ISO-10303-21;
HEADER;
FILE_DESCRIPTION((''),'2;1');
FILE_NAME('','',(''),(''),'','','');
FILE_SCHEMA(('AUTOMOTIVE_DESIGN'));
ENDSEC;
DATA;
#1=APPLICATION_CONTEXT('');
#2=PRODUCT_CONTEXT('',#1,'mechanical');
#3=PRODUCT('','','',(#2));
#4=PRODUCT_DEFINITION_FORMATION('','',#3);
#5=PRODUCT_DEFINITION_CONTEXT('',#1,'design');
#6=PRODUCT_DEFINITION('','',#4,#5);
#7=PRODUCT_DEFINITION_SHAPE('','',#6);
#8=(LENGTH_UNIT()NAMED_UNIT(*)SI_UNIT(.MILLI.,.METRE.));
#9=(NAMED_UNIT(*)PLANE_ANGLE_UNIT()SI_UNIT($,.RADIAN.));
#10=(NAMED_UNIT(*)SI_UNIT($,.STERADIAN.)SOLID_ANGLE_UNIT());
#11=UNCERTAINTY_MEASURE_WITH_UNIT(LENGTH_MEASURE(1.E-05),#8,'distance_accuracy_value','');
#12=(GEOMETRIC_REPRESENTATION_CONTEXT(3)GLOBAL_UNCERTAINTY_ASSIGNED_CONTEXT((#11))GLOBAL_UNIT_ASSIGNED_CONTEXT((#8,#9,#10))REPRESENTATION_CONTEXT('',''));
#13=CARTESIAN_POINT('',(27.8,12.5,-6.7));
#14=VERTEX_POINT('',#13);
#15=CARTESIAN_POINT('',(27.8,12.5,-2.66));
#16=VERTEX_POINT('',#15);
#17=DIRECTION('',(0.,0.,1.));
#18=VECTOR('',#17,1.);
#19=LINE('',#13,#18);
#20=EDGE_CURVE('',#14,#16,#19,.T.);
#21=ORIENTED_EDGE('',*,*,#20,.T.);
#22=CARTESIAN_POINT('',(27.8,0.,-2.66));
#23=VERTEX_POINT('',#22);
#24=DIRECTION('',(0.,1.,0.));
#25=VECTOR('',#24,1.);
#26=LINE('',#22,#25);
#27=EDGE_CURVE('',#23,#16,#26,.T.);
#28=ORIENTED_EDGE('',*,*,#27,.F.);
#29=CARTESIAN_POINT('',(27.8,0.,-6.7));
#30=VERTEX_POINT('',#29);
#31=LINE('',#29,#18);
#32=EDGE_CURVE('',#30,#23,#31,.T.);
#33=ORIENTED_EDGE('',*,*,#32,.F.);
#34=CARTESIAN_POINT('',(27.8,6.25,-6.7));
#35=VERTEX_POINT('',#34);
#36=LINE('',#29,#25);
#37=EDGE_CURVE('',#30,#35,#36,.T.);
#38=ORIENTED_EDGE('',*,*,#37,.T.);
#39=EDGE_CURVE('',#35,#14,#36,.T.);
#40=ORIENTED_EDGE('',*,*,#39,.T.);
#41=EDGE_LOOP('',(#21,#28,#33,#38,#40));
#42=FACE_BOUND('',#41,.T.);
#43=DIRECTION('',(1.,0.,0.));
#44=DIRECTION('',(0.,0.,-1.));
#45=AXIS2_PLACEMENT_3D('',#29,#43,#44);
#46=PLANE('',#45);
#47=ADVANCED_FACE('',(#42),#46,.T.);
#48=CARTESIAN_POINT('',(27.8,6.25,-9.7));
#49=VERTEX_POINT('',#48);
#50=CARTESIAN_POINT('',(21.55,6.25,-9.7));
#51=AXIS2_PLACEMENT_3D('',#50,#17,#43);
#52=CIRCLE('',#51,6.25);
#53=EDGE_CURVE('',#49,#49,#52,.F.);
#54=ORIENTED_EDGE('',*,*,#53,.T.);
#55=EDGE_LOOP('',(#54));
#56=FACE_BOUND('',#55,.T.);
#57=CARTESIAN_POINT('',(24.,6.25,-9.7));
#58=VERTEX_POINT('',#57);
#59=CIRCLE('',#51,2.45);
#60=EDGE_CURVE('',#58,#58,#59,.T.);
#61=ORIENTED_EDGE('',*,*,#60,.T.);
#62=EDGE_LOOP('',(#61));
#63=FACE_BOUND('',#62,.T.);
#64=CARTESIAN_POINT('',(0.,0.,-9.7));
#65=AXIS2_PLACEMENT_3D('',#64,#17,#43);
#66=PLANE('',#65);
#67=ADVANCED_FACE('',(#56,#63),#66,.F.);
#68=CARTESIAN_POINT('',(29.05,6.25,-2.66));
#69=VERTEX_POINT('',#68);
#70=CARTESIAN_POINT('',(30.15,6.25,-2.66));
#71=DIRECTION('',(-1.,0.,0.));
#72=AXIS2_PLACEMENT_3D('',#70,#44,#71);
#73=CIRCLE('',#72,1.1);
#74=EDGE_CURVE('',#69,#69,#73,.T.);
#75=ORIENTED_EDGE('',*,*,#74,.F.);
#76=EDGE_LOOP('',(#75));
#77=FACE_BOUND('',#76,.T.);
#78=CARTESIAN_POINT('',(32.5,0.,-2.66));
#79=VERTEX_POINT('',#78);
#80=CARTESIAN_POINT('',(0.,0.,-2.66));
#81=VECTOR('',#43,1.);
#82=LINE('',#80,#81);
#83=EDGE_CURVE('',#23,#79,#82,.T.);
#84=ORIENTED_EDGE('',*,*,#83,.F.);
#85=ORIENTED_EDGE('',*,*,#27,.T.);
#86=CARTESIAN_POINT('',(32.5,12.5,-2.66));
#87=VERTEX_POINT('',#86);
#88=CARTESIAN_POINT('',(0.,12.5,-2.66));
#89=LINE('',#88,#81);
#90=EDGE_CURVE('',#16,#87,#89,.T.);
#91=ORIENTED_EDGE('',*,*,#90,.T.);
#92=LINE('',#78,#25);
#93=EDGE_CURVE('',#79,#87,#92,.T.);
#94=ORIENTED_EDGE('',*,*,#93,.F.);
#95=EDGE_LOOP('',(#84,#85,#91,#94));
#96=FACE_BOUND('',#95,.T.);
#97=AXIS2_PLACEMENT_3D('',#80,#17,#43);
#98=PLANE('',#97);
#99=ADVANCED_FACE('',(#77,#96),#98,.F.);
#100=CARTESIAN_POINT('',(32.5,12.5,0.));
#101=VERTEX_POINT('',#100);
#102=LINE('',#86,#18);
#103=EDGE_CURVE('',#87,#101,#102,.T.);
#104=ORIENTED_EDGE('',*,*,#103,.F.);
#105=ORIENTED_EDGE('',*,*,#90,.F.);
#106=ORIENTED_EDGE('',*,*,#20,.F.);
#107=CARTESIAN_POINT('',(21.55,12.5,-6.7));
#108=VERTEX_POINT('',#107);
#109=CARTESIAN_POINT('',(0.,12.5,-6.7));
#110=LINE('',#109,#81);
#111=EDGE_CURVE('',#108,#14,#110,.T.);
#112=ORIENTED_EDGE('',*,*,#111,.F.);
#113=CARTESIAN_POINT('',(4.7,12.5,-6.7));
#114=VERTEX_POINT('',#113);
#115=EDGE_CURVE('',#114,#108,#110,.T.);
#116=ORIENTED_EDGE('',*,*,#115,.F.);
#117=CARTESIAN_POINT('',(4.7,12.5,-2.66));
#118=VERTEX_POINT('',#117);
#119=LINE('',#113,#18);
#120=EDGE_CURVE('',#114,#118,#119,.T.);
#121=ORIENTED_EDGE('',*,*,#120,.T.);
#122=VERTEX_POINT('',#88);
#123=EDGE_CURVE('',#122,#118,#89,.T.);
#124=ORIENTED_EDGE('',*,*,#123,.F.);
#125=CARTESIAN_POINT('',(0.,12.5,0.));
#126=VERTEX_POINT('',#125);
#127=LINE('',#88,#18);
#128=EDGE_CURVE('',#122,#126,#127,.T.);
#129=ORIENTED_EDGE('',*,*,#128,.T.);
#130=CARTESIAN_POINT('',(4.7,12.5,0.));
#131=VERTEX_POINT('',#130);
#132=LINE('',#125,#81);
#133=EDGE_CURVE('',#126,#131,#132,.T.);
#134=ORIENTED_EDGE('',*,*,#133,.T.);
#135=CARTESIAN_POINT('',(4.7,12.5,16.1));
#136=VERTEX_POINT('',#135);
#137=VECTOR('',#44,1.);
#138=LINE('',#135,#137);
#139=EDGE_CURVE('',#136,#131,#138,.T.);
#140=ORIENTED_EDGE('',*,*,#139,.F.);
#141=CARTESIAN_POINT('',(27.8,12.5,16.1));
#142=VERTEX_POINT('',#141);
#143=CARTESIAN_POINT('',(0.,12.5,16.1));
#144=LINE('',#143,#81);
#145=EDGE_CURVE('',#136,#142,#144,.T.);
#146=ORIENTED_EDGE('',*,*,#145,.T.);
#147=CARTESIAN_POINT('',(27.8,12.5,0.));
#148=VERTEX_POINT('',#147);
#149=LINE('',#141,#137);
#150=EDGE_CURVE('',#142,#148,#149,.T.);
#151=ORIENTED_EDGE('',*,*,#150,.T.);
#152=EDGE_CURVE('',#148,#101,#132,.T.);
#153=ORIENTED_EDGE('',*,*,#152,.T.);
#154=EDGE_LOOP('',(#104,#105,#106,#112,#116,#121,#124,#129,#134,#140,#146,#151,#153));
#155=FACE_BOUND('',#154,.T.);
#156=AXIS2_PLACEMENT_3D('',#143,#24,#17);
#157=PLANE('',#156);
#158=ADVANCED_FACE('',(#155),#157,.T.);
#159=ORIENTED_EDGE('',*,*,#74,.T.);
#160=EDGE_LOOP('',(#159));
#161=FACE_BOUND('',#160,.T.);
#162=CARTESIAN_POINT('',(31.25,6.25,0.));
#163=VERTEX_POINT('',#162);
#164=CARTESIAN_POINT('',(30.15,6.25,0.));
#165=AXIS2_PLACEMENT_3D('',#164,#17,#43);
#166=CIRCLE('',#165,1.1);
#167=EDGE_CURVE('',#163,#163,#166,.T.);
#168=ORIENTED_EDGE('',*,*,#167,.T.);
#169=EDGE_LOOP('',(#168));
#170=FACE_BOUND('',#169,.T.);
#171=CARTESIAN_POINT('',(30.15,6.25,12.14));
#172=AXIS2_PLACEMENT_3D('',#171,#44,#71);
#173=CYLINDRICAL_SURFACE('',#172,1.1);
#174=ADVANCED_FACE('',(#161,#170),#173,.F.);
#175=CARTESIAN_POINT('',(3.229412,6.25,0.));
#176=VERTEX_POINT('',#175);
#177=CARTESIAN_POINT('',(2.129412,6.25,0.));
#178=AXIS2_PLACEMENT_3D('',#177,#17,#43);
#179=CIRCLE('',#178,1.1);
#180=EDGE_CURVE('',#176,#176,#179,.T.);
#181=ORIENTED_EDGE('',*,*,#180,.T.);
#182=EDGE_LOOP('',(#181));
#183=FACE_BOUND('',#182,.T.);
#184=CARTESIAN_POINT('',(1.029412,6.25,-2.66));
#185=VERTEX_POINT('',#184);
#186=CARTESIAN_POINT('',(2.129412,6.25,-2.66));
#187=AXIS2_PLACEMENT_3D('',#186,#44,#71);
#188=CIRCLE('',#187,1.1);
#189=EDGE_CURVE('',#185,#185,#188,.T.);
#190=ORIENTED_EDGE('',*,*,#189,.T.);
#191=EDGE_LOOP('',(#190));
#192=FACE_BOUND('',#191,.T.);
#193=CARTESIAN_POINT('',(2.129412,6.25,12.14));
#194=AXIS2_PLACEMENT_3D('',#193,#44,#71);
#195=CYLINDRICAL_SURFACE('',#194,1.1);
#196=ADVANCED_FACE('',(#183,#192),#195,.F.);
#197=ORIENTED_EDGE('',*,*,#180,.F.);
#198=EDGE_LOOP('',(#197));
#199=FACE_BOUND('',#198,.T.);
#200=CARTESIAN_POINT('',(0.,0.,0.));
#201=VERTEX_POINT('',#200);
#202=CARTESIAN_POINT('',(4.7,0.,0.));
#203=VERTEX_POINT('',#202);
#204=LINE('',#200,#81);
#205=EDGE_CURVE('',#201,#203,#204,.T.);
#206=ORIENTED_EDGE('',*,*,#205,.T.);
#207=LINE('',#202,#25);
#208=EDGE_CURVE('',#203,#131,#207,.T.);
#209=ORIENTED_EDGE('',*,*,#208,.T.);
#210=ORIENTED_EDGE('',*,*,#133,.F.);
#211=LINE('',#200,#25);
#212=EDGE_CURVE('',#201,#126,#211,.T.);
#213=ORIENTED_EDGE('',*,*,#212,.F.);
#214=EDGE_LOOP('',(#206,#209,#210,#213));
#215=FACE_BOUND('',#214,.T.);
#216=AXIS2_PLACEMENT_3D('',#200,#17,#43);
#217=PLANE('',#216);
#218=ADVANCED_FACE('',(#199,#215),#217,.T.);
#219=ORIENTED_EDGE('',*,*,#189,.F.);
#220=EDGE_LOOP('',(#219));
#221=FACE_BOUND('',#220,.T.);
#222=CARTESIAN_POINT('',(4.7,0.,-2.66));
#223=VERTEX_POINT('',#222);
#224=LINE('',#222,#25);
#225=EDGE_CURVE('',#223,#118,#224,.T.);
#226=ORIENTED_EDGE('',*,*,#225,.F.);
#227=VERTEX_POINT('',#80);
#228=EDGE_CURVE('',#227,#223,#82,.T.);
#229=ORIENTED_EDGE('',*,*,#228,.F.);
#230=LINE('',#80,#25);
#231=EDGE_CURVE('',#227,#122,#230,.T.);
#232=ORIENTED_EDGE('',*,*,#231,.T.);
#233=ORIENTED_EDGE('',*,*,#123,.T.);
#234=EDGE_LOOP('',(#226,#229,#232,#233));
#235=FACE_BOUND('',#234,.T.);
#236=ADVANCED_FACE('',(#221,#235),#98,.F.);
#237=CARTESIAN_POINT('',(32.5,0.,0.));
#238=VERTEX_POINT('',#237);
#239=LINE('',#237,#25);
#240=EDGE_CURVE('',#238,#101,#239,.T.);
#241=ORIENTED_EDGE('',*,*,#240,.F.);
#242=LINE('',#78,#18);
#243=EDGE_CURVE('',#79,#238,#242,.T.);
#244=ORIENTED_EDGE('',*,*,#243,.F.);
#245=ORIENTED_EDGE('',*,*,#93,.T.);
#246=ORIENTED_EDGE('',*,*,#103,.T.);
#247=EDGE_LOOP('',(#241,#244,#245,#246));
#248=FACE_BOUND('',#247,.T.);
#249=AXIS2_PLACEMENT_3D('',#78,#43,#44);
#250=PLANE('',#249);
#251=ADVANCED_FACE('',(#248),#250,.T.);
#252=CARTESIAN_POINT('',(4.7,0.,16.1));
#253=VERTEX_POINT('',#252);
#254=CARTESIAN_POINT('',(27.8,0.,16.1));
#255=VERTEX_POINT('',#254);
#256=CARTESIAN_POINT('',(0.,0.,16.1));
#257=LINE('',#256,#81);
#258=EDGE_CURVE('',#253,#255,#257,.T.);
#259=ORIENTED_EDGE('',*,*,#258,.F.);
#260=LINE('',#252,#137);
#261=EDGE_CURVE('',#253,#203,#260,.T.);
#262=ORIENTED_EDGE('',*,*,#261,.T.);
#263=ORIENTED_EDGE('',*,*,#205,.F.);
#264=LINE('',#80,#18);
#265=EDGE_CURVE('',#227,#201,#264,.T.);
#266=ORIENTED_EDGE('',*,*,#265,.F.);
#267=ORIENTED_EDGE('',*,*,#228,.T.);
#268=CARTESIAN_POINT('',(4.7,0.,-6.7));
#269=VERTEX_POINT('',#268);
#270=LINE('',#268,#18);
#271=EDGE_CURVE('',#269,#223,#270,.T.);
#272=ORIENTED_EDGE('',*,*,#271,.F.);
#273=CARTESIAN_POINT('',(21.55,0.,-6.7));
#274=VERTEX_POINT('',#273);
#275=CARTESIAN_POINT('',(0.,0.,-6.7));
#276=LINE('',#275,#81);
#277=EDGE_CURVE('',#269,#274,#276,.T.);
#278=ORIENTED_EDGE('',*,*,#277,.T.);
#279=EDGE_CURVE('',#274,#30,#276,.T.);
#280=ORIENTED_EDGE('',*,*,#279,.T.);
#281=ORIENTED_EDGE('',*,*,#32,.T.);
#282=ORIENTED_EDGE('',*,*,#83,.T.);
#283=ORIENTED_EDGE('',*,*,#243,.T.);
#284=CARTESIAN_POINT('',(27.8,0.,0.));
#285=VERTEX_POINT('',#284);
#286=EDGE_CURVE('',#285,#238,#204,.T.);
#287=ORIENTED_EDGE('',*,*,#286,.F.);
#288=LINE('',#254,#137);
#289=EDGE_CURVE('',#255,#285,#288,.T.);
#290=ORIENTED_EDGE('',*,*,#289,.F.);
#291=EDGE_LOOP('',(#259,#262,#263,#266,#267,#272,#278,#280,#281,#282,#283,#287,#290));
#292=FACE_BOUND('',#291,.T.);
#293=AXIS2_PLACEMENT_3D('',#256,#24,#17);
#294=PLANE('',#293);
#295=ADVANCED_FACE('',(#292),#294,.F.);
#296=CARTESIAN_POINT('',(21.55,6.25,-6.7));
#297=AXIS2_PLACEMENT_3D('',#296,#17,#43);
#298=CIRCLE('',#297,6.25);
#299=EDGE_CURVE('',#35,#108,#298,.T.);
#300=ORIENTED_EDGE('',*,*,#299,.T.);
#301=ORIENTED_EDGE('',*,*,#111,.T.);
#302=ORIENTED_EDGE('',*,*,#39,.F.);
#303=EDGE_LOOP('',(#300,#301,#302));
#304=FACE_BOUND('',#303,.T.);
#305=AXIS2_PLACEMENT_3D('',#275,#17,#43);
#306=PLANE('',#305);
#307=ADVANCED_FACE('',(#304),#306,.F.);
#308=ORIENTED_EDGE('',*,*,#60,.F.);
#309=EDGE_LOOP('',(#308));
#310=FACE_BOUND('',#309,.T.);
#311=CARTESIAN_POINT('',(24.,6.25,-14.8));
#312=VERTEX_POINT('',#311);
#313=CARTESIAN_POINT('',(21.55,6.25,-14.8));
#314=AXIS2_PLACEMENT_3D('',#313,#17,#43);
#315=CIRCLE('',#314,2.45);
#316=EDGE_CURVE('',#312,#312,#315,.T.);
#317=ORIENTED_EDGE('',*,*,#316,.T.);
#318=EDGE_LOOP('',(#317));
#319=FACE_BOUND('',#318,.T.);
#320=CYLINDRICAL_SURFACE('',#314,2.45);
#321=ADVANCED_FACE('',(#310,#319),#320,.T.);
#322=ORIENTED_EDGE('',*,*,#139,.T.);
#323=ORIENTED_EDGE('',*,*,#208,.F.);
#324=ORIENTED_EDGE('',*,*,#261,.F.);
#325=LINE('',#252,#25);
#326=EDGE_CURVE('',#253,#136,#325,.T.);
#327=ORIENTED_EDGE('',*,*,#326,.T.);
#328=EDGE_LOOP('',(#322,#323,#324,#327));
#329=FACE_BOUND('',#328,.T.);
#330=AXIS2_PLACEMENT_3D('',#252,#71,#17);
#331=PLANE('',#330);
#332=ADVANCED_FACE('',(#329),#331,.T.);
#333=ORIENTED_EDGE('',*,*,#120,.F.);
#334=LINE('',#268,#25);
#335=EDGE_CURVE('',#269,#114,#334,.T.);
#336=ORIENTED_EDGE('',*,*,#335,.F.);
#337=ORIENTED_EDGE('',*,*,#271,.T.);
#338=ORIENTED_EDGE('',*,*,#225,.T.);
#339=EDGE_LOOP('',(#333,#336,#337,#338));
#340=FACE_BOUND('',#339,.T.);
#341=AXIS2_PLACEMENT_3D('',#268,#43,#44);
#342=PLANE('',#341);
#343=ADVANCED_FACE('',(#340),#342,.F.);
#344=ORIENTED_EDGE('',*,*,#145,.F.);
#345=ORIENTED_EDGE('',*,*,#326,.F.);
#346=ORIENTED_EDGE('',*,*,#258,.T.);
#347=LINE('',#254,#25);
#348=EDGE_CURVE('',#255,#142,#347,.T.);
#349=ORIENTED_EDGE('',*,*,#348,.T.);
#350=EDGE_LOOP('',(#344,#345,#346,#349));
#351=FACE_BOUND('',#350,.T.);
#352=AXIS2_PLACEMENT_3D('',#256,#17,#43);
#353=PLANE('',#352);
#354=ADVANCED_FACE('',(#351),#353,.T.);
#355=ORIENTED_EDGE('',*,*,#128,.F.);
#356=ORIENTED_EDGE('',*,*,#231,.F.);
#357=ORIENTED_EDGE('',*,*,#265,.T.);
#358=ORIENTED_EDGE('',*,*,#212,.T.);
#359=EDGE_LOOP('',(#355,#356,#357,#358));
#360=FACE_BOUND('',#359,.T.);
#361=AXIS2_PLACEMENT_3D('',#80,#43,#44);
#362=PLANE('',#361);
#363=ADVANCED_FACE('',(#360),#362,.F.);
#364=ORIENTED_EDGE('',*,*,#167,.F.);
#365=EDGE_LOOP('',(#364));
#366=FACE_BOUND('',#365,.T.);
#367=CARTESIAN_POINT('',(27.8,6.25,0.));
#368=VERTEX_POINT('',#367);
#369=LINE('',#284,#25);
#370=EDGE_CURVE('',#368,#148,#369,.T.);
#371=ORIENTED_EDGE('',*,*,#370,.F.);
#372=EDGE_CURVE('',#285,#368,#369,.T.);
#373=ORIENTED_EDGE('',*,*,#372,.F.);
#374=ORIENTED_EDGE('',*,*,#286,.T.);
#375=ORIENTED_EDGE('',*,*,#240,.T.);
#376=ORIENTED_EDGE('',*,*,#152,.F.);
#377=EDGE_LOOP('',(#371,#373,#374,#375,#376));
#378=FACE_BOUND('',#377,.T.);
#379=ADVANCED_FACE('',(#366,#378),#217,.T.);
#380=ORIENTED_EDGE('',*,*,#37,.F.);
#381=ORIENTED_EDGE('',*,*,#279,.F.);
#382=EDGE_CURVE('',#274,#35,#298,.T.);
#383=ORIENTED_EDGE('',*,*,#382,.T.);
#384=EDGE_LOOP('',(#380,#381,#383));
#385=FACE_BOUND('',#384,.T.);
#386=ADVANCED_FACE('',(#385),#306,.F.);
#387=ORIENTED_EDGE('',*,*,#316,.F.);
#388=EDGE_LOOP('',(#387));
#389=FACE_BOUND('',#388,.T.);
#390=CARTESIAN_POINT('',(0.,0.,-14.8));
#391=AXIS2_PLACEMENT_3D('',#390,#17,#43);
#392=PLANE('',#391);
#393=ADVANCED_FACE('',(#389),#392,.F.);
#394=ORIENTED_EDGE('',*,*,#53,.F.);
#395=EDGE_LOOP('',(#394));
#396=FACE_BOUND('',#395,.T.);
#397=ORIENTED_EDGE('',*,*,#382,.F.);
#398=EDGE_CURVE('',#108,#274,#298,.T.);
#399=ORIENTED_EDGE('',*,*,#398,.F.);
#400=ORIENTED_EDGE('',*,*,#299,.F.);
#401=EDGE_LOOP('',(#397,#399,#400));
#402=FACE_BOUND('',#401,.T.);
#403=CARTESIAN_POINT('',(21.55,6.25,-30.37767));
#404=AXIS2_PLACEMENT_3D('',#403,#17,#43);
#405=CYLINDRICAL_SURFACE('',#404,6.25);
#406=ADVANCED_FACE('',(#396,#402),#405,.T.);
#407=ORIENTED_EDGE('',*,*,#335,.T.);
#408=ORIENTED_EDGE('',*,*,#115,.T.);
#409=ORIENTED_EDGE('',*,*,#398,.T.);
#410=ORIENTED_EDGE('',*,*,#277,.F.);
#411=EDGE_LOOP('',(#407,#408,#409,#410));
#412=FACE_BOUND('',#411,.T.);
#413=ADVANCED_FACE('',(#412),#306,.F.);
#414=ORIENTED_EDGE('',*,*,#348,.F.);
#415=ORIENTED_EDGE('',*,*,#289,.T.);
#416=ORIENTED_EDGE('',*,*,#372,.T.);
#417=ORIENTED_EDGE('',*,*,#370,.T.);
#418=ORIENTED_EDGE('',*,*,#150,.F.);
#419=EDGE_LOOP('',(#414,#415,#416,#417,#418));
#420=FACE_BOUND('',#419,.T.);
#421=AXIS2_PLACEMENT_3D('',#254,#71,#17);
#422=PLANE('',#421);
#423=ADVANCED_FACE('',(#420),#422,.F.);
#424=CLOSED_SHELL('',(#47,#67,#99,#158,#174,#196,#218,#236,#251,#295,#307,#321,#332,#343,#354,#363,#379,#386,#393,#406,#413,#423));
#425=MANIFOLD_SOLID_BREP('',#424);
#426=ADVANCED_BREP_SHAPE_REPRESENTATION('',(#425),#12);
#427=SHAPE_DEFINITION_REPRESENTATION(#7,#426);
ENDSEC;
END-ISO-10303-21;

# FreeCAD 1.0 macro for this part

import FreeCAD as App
import Part
import Sketcher
Q = App.Units.Quantity


def add_polygon(sketch, points):
    """Adds a closed chain of lines whose ends are joined by coincident constraints."""
    first, n = sketch.GeometryCount, len(points)
    for a, b in zip(points, points[1:] + points[:1]):
        sketch.addGeometry(Part.LineSegment(App.Vector(*a, 0), App.Vector(*b, 0)), False)
    for i in range(n):
        sketch.addConstraint(Sketcher.Constraint("Coincident", first + i, 2, first + (i + 1) % n, 1))

doc = App.newDocument("Part")
body = doc.addObject("PartDesign::Body", "Body")

# Sketch on XY plane
sketch1 = body.newObject("Sketcher::SketchObject", "Sketch")
sketch1.AttachmentSupport = (doc.getObject("XY_Plane"), [""])
sketch1.MapMode = "FlatFace"
add_polygon(sketch1, [(5, 12), (5, 0), (28, 0), (28, 12)])  # lines 0-3
sketch1.addConstraint([
    Sketcher.Constraint("Vertical", 0),
    Sketcher.Constraint("Horizontal", 1),
    Sketcher.Constraint("Vertical", 2),
    Sketcher.Constraint("Horizontal", 3),
    Sketcher.Constraint("PointOnObject", 0, 2, -1),
    Sketcher.Constraint("DistanceX", 1, 1, 1, 2, Q("23.1 mm")),
    Sketcher.Constraint("DistanceY", 0, 2, 0, 1, Q("12.5 mm")),
    Sketcher.Constraint("DistanceX", -1, 1, 0, 2, Q("4.7 mm")),
])
pad1 = body.newObject("PartDesign::Pad", "Pad")
pad1.Profile = sketch1
pad1.Length = 16.1

# Sketch on XY plane
sketch2 = body.newObject("Sketcher::SketchObject", "Sketch001")
sketch2.AttachmentSupport = (doc.getObject("XY_Plane"), [""])
sketch2.MapMode = "FlatFace"
add_polygon(sketch2, [(0, 12), (0, 0), (32, 0), (32, 12)])  # lines 0-3
sketch2.addConstraint([
    Sketcher.Constraint("Vertical", 0),
    Sketcher.Constraint("Horizontal", 1),
    Sketcher.Constraint("Vertical", 2),
    Sketcher.Constraint("Horizontal", 3),
    Sketcher.Constraint("Coincident", 0, 2, -1, 1),
    Sketcher.Constraint("DistanceX", 1, 1, 1, 2, Q("32.5 mm")),
    Sketcher.Constraint("DistanceY", 0, 2, 0, 1, Q("12.5 mm")),
])
pad2 = body.newObject("PartDesign::Pad", "Pad001")
pad2.Profile = sketch2
pad2.Length = 2.66
pad2.Reversed = True

# Sketch on XY plane
sketch3 = body.newObject("Sketcher::SketchObject", "Sketch002")
sketch3.AttachmentSupport = (doc.getObject("XY_Plane"), [""])
sketch3.MapMode = "FlatFace"
add_polygon(sketch3, [(28, 12), (5, 12), (5, 0), (28, 0)])  # lines 0-3
sketch3.addConstraint([
    Sketcher.Constraint("Horizontal", 0),
    Sketcher.Constraint("Vertical", 1),
    Sketcher.Constraint("Horizontal", 2),
    Sketcher.Constraint("Vertical", 3),
    Sketcher.Constraint("PointOnObject", 1, 2, -1),
    Sketcher.Constraint("DistanceX", 0, 2, 0, 1, Q("23.1 mm")),
    Sketcher.Constraint("DistanceY", 1, 2, 1, 1, Q("12.5 mm")),
    Sketcher.Constraint("DistanceX", -1, 1, 0, 2, Q("4.7 mm")),
])
pad3 = body.newObject("PartDesign::Pad", "Pad002")
pad3.Profile = sketch3
pad3.Length = 6.7
pad3.Reversed = True

# Sketch on XY plane
sketch4 = body.newObject("Sketcher::SketchObject", "Sketch003")
sketch4.AttachmentSupport = (doc.getObject("XY_Plane"), [""])
sketch4.MapMode = "FlatFace"
sketch4.addGeometry(Part.Circle(App.Vector(22, 6, 0), App.Vector(0, 0, 1), 6), False)
sketch4.addConstraint([
    Sketcher.Constraint("Diameter", 0, Q("12.5 mm")),
    Sketcher.Constraint("DistanceX", -1, 1, 0, 3, Q("21.55 mm")),
    Sketcher.Constraint("DistanceY", -1, 1, 0, 3, Q("6.25 mm")),
])
pad4 = body.newObject("PartDesign::Pad", "Pad003")
pad4.Profile = sketch4
pad4.Length = 9.7
pad4.Reversed = True

# Sketch on XY plane
sketch5 = body.newObject("Sketcher::SketchObject", "Sketch004")
sketch5.AttachmentSupport = (doc.getObject("XY_Plane"), [""])
sketch5.MapMode = "FlatFace"
sketch5.addGeometry(Part.Circle(App.Vector(21.6, 6.2, 0), App.Vector(0, 0, 1), 2.5), False)
sketch5.addConstraint([
    Sketcher.Constraint("Diameter", 0, Q("4.9 mm")),
    Sketcher.Constraint("DistanceX", -1, 1, 0, 3, Q("21.55 mm")),
    Sketcher.Constraint("DistanceY", -1, 1, 0, 3, Q("6.25 mm")),
])
pad5 = body.newObject("PartDesign::Pad", "Pad004")
pad5.Profile = sketch5
pad5.Length = 14.8
pad5.Reversed = True

# Sketch on XY plane
sketch6 = body.newObject("Sketcher::SketchObject", "Sketch005")
sketch6.AttachmentSupport = (doc.getObject("XY_Plane"), [""])
sketch6.MapMode = "FlatFace"
sketch6.AttachmentOffset = App.Placement(App.Vector(0, 0, -2.66), App.Rotation())
sketch6.addGeometry(Part.Circle(App.Vector(2.1, 6.2, 0), App.Vector(0, 0, 1), 1.1), False)
sketch6.addConstraint([
    Sketcher.Constraint("Diameter", 0, Q("2.2 mm")),
    Sketcher.Constraint("DistanceY", -1, 1, 0, 3, Q("6.25 mm")),
    Sketcher.Constraint("DistanceX", -1, 1, 0, 3, Q("2.129412 mm")),
])
pocket1 = body.newObject("PartDesign::Pocket", "Pocket")
pocket1.Profile = sketch6
pocket1.Length = 14.8
pocket1.Reversed = True

# Sketch on XY plane
sketch7 = body.newObject("Sketcher::SketchObject", "Sketch006")
sketch7.AttachmentSupport = (doc.getObject("XY_Plane"), [""])
sketch7.MapMode = "FlatFace"
sketch7.AttachmentOffset = App.Placement(App.Vector(0, 0, -2.66), App.Rotation())
sketch7.addGeometry(Part.Circle(App.Vector(30.1, 6.2, 0), App.Vector(0, 0, 1), 1.1), False)
sketch7.addConstraint([
    Sketcher.Constraint("Diameter", 0, Q("2.2 mm")),
    Sketcher.Constraint("DistanceX", -1, 1, 0, 3, Q("30.15 mm")),
    Sketcher.Constraint("DistanceY", -1, 1, 0, 3, Q("6.25 mm")),
])
pocket2 = body.newObject("PartDesign::Pocket", "Pocket001")
pocket2.Profile = sketch7
pocket2.Length = 14.8
pocket2.Reversed = True

doc.recompute()
